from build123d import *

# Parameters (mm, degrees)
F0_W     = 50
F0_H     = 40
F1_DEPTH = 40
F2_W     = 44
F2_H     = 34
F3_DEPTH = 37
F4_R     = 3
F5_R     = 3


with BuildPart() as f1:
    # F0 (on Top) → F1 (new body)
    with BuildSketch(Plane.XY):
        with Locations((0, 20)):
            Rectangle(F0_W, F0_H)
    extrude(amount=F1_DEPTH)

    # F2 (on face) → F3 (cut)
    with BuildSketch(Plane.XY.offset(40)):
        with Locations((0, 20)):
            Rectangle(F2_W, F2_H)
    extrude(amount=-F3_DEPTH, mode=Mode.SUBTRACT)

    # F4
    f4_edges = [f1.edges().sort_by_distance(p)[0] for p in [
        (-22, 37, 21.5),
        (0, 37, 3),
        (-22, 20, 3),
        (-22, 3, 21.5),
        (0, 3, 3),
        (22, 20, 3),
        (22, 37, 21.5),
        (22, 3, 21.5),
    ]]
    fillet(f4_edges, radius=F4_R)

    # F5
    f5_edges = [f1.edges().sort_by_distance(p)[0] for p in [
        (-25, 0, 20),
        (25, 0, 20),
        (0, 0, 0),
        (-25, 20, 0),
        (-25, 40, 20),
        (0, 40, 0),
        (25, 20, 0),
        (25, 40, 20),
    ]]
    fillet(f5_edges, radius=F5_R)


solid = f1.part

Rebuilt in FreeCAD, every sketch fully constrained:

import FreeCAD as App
import Part
import Sketcher
from FreeCAD import Vector


def edges_at(feature, points):
    """Names of the edges that pass closest to the given points."""
    edges = feature.Shape.Edges
    near = lambda p: min(range(len(edges)), key=lambda i: edges[i].distToShape(Part.Vertex(*p))[0])
    return sorted({f"Edge{near(p) + 1}" for p in points})


def add_polygon(sketch, points):
    """Adds a closed chain of lines whose ends are joined by coincident constraints."""
    first, n = sketch.GeometryCount, len(points)
    for a, b in zip(points, points[1:] + points[:1]):
        sketch.addGeometry(Part.LineSegment(App.Vector(*a, 0), App.Vector(*b, 0)), False)
    for i in range(n):
        sketch.addConstraint(Sketcher.Constraint("Coincident", first + i, 2, first + (i + 1) % n, 1))

doc = App.newDocument("Part")
body = doc.addObject("PartDesign::Body", "Body")

sketch1 = body.newObject("Sketcher::SketchObject", "Sketch")
sketch1.AttachmentSupport = (doc.getObject("XY_Plane"), [""])
sketch1.MapMode = "FlatFace"
add_polygon(sketch1, [(-25, 40), (-25, 0), (25, 0), (25, 40)])
sketch1.addConstraint(Sketcher.Constraint("Vertical", 0))
sketch1.addConstraint(Sketcher.Constraint("Horizontal", 1))
sketch1.addConstraint(Sketcher.Constraint("Vertical", 2))
sketch1.addConstraint(Sketcher.Constraint("Horizontal", 3))
sketch1.addConstraint(Sketcher.Constraint("Symmetric", 0, 2, 1, 2, -1, 1))
sketch1.addConstraint(Sketcher.Constraint("DistanceX", 1, 1, 1, 2, 50.0))
sketch1.addConstraint(Sketcher.Constraint("DistanceY", 0, 2, 0, 1, 40.0))
pad1 = body.newObject("PartDesign::Pad", "Pad")
pad1.Profile = sketch1
pad1.Length = 40

sketch2 = body.newObject("Sketcher::SketchObject", "Sketch001")
sketch2.AttachmentSupport = (doc.getObject("XY_Plane"), [""])
sketch2.MapMode = "FlatFace"
sketch2.AttachmentOffset = App.Placement(Vector(0, 0, 40), App.Rotation())
add_polygon(sketch2, [(-22, 37), (-22, 3), (22, 3), (22, 37)])
sketch2.addConstraint(Sketcher.Constraint("Vertical", 0))
sketch2.addConstraint(Sketcher.Constraint("Horizontal", 1))
sketch2.addConstraint(Sketcher.Constraint("Vertical", 2))
sketch2.addConstraint(Sketcher.Constraint("Horizontal", 3))
sketch2.addConstraint(Sketcher.Constraint("DistanceX", 1, 1, 1, 2, 44.0))
sketch2.addConstraint(Sketcher.Constraint("DistanceY", 0, 2, 0, 1, 34.0))
sketch2.addConstraint(Sketcher.Constraint("DistanceX", 0, 2, -1, 1, 22.0))
sketch2.addConstraint(Sketcher.Constraint("DistanceY", -1, 1, 0, 2, 3.0))
pocket1 = body.newObject("PartDesign::Pocket", "Pocket")
pocket1.Profile = sketch2
pocket1.Length = 37
doc.recompute()

fillet = body.newObject("PartDesign::Fillet", "Fillet")
fillet.Base = (pocket1, edges_at(pocket1, [
    (-22, 37, 21.5),
    (0, 37, 3),
    (-22, 20, 3),
    (-22, 3, 21.5),
    (0, 3, 3),
    (22, 20, 3),
    (22, 37, 21.5),
    (22, 3, 21.5),
]))
fillet.Radius = 3
doc.recompute()

fillet2 = body.newObject("PartDesign::Fillet", "Fillet001")
fillet2.Base = (fillet, edges_at(fillet, [
    (-25, 0, 20),
    (25, 0, 20),
    (0, 0, 0),
    (-25, 20, 0),
    (-25, 40, 20),
    (0, 40, 0),
    (25, 20, 0),
    (25, 40, 20),
]))
fillet2.Radius = 3

doc.recompute()
